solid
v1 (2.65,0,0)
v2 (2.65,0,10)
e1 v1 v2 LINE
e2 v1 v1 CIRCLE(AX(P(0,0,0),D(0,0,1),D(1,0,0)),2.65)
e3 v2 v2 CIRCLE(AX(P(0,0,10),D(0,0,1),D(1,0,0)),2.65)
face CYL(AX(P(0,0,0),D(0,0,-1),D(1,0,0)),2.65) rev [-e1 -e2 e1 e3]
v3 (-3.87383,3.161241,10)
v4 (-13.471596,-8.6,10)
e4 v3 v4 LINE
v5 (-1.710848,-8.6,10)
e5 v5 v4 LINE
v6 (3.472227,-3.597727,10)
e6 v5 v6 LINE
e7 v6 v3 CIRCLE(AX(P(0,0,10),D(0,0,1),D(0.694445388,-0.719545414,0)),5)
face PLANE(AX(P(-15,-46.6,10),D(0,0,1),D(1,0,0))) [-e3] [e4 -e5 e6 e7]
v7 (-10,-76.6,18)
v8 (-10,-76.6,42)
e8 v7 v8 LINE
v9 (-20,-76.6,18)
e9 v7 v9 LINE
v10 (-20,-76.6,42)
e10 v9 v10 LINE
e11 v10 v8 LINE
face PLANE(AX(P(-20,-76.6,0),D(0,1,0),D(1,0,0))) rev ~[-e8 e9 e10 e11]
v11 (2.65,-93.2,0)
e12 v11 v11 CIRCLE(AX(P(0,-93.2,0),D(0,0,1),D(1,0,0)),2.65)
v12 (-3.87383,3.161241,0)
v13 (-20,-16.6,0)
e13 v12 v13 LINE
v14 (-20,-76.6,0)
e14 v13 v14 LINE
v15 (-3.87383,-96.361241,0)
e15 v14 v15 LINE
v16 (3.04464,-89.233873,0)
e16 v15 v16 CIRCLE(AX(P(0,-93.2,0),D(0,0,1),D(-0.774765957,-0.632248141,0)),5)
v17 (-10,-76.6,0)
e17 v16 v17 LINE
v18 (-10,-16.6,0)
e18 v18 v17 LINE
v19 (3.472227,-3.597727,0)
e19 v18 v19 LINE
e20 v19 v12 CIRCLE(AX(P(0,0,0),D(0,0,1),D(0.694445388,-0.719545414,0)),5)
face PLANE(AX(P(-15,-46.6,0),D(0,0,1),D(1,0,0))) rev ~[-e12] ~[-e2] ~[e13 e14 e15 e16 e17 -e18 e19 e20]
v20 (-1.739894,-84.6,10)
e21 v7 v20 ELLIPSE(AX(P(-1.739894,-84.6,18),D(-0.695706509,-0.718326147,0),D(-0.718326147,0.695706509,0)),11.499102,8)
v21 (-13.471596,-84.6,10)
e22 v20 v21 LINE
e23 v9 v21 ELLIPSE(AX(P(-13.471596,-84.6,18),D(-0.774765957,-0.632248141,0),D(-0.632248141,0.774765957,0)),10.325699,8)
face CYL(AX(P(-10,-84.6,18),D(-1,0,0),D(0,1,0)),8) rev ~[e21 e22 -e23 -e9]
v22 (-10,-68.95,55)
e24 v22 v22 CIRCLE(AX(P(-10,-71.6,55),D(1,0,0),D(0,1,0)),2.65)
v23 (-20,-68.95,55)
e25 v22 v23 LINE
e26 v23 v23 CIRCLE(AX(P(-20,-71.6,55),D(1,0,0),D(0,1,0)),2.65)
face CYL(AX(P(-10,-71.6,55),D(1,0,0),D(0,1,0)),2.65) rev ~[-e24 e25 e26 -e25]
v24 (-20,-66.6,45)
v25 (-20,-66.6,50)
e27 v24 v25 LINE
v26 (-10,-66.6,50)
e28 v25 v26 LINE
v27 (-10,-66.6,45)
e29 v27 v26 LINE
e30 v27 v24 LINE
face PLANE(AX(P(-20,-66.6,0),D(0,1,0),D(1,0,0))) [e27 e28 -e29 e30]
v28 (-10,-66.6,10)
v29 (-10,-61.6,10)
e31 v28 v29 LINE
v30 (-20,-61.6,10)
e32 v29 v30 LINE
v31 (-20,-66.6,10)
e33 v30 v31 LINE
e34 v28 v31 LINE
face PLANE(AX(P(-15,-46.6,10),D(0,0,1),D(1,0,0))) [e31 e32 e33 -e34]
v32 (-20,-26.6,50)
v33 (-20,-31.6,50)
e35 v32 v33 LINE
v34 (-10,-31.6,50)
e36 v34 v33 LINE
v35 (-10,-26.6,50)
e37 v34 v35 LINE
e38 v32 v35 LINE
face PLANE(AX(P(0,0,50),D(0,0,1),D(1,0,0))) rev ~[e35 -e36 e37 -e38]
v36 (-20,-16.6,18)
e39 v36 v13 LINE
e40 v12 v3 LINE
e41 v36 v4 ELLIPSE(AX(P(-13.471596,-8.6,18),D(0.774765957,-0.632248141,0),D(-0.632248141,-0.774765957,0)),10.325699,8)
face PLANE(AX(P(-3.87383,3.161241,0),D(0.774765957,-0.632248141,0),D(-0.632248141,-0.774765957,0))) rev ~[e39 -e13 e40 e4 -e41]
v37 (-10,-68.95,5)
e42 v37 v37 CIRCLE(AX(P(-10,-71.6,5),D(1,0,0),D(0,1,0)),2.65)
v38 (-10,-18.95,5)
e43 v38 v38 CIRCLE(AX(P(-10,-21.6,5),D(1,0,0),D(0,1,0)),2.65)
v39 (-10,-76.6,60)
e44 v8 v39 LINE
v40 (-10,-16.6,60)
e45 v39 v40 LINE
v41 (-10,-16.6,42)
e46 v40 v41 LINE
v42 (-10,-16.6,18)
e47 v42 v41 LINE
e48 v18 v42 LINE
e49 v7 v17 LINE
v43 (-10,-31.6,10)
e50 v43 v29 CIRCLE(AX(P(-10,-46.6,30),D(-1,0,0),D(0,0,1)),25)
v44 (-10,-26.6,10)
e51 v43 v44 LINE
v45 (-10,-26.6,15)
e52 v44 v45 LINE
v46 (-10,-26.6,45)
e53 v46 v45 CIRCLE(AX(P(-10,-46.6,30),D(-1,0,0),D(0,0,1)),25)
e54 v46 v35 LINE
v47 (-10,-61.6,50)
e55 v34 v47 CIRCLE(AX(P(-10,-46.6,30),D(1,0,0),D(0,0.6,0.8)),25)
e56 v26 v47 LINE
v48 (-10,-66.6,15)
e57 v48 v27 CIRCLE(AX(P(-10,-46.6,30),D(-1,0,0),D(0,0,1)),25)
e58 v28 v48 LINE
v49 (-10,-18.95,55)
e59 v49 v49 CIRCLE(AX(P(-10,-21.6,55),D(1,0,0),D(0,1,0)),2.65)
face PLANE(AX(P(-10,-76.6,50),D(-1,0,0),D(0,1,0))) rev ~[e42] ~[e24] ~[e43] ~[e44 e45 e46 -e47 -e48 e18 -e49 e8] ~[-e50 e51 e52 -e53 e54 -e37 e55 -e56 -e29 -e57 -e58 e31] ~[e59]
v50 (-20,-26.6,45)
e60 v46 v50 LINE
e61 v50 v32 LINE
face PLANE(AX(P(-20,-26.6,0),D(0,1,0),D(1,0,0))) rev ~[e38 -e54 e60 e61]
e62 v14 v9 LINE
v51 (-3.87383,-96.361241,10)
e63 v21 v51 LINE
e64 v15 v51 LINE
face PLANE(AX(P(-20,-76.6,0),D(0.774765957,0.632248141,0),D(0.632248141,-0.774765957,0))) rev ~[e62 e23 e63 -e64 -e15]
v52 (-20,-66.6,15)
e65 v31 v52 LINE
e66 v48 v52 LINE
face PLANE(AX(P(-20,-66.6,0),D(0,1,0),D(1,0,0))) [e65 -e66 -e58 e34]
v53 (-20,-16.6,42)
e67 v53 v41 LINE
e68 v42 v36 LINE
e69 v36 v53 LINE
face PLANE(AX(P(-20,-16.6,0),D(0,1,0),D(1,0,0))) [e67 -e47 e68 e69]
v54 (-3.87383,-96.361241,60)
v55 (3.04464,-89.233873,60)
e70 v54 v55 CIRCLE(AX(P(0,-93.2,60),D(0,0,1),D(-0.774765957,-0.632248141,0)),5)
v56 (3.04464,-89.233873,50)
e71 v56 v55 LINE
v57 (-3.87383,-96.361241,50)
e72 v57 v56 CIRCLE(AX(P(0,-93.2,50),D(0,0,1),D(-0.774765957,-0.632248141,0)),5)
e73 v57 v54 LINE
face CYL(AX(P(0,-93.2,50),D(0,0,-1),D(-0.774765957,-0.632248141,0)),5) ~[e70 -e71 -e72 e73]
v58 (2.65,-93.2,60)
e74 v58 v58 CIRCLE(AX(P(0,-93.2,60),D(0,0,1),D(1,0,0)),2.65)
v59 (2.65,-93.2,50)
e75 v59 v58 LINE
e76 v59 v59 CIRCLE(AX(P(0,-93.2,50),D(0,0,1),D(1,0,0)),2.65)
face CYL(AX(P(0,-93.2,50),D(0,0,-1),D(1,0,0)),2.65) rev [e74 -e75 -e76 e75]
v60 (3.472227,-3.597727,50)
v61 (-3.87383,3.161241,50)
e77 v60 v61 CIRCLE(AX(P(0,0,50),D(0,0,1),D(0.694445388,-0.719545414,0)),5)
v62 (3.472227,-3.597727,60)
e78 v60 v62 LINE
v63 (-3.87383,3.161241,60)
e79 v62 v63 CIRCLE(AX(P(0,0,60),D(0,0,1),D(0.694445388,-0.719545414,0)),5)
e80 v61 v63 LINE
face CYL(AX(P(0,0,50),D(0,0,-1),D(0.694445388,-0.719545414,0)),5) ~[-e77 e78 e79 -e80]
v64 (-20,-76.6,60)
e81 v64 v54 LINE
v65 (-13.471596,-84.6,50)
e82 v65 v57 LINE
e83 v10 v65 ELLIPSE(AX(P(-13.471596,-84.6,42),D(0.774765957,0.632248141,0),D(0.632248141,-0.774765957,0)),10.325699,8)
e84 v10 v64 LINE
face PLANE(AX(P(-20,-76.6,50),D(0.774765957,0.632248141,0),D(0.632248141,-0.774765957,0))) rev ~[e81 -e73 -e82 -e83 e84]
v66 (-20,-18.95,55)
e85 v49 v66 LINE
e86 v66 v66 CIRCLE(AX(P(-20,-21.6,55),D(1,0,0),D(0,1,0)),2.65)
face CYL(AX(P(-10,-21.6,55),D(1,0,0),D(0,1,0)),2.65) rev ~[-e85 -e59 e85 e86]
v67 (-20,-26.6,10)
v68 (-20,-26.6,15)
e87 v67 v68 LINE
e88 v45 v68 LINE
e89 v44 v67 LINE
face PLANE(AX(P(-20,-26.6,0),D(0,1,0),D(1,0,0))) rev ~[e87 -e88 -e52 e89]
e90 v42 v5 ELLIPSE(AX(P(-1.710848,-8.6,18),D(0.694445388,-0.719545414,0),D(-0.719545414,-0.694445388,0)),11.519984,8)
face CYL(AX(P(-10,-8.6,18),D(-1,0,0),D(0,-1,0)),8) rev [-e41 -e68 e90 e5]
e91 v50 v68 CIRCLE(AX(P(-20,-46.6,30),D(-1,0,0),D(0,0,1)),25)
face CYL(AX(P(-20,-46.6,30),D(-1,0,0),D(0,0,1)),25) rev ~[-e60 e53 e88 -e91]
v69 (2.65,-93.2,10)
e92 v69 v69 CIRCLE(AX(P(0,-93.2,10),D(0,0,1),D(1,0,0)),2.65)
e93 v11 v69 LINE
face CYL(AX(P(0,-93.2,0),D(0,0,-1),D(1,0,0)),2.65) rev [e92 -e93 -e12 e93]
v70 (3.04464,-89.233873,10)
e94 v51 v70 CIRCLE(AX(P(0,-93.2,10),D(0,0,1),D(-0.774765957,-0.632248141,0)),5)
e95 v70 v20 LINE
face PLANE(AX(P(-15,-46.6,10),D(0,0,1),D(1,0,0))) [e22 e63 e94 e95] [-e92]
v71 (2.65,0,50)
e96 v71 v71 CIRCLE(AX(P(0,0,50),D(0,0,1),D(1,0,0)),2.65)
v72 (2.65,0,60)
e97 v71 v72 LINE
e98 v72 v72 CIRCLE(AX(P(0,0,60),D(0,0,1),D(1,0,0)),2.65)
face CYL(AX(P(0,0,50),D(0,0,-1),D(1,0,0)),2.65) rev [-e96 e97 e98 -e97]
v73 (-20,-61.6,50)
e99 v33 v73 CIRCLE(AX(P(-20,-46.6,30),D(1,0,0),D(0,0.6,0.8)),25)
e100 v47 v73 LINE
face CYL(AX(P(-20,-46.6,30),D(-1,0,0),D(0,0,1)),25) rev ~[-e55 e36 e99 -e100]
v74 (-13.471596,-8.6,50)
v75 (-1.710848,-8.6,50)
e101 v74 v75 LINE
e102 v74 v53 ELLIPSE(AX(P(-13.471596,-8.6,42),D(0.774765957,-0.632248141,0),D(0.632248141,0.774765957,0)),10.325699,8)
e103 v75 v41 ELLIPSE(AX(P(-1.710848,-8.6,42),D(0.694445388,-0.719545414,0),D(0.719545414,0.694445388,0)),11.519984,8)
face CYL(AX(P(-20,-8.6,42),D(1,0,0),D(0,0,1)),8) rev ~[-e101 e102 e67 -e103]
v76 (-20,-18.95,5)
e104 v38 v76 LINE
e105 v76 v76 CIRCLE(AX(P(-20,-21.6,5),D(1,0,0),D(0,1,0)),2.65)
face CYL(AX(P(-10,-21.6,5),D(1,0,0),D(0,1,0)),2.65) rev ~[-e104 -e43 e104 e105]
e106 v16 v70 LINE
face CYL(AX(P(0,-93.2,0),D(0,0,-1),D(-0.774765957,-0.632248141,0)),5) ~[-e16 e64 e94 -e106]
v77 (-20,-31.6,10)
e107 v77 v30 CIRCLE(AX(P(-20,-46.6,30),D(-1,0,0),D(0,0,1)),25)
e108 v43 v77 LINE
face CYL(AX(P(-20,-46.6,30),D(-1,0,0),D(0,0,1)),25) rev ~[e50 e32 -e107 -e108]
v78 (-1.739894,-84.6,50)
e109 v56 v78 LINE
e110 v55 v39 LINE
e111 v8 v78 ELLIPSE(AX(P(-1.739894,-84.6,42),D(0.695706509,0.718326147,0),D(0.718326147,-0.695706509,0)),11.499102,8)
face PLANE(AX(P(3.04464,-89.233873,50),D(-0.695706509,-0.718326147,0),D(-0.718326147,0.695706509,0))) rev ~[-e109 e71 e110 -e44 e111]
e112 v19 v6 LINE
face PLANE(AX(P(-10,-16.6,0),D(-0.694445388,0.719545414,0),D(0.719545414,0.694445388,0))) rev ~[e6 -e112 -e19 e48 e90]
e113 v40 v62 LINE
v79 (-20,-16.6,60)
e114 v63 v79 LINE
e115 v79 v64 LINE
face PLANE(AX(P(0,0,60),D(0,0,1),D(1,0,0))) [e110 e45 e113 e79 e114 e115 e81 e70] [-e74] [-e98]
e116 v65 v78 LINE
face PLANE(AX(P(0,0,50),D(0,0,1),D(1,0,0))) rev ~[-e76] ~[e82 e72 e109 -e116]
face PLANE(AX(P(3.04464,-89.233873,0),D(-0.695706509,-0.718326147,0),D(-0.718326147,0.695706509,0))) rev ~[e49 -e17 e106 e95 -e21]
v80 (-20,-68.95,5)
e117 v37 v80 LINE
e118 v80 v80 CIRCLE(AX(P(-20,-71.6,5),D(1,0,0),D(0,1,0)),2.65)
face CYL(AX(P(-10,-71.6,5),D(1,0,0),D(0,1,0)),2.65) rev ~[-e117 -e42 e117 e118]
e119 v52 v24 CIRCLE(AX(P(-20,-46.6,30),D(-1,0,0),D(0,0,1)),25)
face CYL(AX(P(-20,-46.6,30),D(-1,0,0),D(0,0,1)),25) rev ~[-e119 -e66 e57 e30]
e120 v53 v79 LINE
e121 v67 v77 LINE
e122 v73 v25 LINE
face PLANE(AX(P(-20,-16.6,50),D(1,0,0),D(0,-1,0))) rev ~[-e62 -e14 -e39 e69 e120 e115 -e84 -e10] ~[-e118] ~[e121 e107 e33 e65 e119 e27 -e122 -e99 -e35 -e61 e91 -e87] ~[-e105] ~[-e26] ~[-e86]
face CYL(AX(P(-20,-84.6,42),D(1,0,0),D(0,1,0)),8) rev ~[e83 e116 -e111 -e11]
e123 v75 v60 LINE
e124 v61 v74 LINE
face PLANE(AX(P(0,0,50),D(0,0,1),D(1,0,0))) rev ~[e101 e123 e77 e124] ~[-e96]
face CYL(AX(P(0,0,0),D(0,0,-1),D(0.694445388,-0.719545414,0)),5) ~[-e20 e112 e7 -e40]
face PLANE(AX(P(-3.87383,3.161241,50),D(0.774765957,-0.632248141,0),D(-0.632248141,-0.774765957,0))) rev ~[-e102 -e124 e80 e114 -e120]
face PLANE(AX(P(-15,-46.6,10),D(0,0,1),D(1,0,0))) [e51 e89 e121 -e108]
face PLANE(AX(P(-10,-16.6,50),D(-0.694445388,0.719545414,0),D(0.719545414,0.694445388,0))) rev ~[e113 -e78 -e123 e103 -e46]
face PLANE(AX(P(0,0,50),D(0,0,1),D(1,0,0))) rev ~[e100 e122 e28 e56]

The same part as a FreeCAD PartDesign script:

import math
import FreeCAD as App
import Part
import Sketcher


def edges_at(feature, points):
    """Names of the edges that pass closest to the given points."""
    edges = feature.Shape.Edges
    near = lambda p: min(range(len(edges)), key=lambda i: edges[i].distToShape(Part.Vertex(*p))[0])
    return sorted({f"Edge{near(p) + 1}" for p in points})


def add_polygon(sketch, points):
    """Adds a closed chain of lines whose ends are joined by coincident constraints."""
    first, n = sketch.GeometryCount, len(points)
    for a, b in zip(points, points[1:] + points[:1]):
        sketch.addGeometry(Part.LineSegment(App.Vector(*a, 0), App.Vector(*b, 0)), False)
    for i in range(n):
        sketch.addConstraint(Sketcher.Constraint("Coincident", first + i, 2, first + (i + 1) % n, 1))

doc = App.newDocument("Part")
params = doc.addObject("Spreadsheet::Sheet", "Params")
for row, (alias, value) in enumerate([
    ("sketch1_radius", "5 mm"),
    ("sketch1_diameter", "5.3 mm"),
    ("sketch1_height", "60 mm"),
    ("pad1_length", "10 mm"),
    ("sketch2_width", "10 mm"),
    ("pad2_length", "50 mm"),
    ("sketch3_radius", "5 mm"),
    ("sketch3_diameter", "5.3 mm"),
    ("sketch3_height", "60 mm"),
    ("pad3_length", "10 mm"),
    ("sketch4_diameter", "50 mm"),
    ("sketch5_diameter", "5.3 mm"),
    ("fillet_radius", "8 mm"),
], start=1):
    params.set(f"A{row}", alias)
    params.set(f"B{row}", "=" + value)
    params.setAlias(f"B{row}", alias)

body = doc.addObject("PartDesign::Body", "Body")

sketch1 = body.newObject("Sketcher::SketchObject", "Sketch")
sketch1.AttachmentSupport = (doc.getObject("XY_Plane"), [""])
sketch1.MapMode = "FlatFace"
sketch1.addGeometry([
    Part.LineSegment(App.Vector(-20, -16.6, 0), App.Vector(-20, -76.6, 0)),
    Part.LineSegment(App.Vector(-20, -76.6, 0), App.Vector(-3.9, -96.4, 0)),
    Part.ArcOfCircle(Part.Circle(App.Vector(0, -93.2, 0), App.Vector(0, 0, 1), 5), math.radians(-141), math.radians(52)),
    Part.LineSegment(App.Vector(3, -89.2, 0), App.Vector(-10, -76.6, 0)),
    Part.LineSegment(App.Vector(-10, -76.6, 0), App.Vector(-10, -16.6, 0)),
    Part.LineSegment(App.Vector(-10, -16.6, 0), App.Vector(3.5, -3.6, 0)),
    Part.ArcOfCircle(Part.Circle(App.Vector(0, 0, 0), App.Vector(0, 0, 1), 5), math.radians(-46), math.radians(141)),
    Part.LineSegment(App.Vector(-3.9, 3.2, 0), App.Vector(-20, -16.6, 0)),
    Part.Circle(App.Vector(0, -93.2, 0), App.Vector(0, 0, 1), 2.6),
    Part.Circle(App.Vector(0, 0, 0), App.Vector(0, 0, 1), 2.6),
], False)
sketch1.addConstraint([
    Sketcher.Constraint("Coincident", 0, 2, 1, 1),
    Sketcher.Constraint("Tangent", 1, 2, 2, 1),
    Sketcher.Constraint("Coincident", 2, 2, 3, 1),
    Sketcher.Constraint("Coincident", 3, 2, 4, 1),
    Sketcher.Constraint("Coincident", 4, 2, 5, 1),
    Sketcher.Constraint("Tangent", 5, 2, 6, 1),
    Sketcher.Constraint("Tangent", 6, 2, 7, 1),
    Sketcher.Constraint("Coincident", 7, 2, 0, 1),
    Sketcher.Constraint("Vertical", 0),
    Sketcher.Constraint("Vertical", 4),
    Sketcher.Constraint("Coincident", 6, 3, -1, 1),
    Sketcher.Constraint("Coincident", 9, 3, -1, 1),
    Sketcher.Constraint("Coincident", 8, 3, 2, 3),
    Sketcher.Constraint("Equal", 2, 6),
    Sketcher.Constraint("Equal", 8, 9),
    Sketcher.Constraint("PointOnObject", 2, 3, -2),
    Sketcher.Constraint("Horizontal", 0, 2, 3, 2),
    Sketcher.Constraint("Horizontal", 4, 2, 7, 2),
    Sketcher.Constraint("Vertical", 1, 2, 6, 2),
    Sketcher.Constraint("Radius", 2, 5.0),
    Sketcher.Constraint("Diameter", 8, 5.3),
    Sketcher.Constraint("DistanceY", 0, 2, 0, 1, 60.0),
    Sketcher.Constraint("DistanceX", 0, 2, -1, 1, 20.0),
    Sketcher.Constraint("DistanceX", 3, 2, -1, 1, 10.0),
    Sketcher.Constraint("DistanceY", 2, 3, -1, 1, 93.2),
    Sketcher.Constraint("DistanceX", -1, 1, 2, 2, 3.04464),
])
sketch1.setExpression("Constraints[19]", "Params.sketch1_radius")
sketch1.setExpression("Constraints[20]", "Params.sketch1_diameter")
sketch1.setExpression("Constraints[21]", "Params.sketch1_height")
pad1 = body.newObject("PartDesign::Pad", "Pad")
pad1.Profile = sketch1
pad1.setExpression("Length", "Params.pad1_length")

sketch2 = body.newObject("Sketcher::SketchObject", "Sketch001")
sketch2.AttachmentSupport = (doc.getObject("XY_Plane"), [""])
sketch2.MapMode = "FlatFace"
add_polygon(sketch2, [(-20, -17), (-20, -27), (-10, -27), (-10, -17)])
add_polygon(sketch2, [(-20, -67), (-20, -77), (-10, -77), (-10, -67)])
sketch2.addConstraint([
    Sketcher.Constraint("Vertical", 0),
    Sketcher.Constraint("Horizontal", 1),
    Sketcher.Constraint("Vertical", 2),
    Sketcher.Constraint("Horizontal", 3),
    Sketcher.Constraint("Vertical", 4),
    Sketcher.Constraint("Horizontal", 5),
    Sketcher.Constraint("Vertical", 6),
    Sketcher.Constraint("Horizontal", 7),
    Sketcher.Constraint("Vertical", 3, 2, 4, 2),
    Sketcher.Constraint("Vertical", 2, 2, 5, 2),
    Sketcher.Constraint("Equal", 7, 0),
    Sketcher.Constraint("Equal", 2, 4),
    Sketcher.Constraint("DistanceX", 1, 1, 1, 2, 10.0),
    Sketcher.Constraint("DistanceX", 0, 2, -1, 1, 20.0),
    Sketcher.Constraint("DistanceY", 4, 2, 0, 2, 50.0),
    Sketcher.Constraint("DistanceY", 0, 2, -1, 1, 26.6),
])
sketch2.setExpression("Constraints[20]", "Params.sketch2_width")
pad2 = body.newObject("PartDesign::Pad", "Pad001")
pad2.Profile = sketch2
pad2.setExpression("Length", "Params.pad2_length")

sketch3 = body.newObject("Sketcher::SketchObject", "Sketch002")
sketch3.AttachmentSupport = (doc.getObject("XY_Plane"), [""])
sketch3.MapMode = "FlatFace"
sketch3.AttachmentOffset = App.Placement(App.Vector(0, 0, 50), App.Rotation())
sketch3.addGeometry([
    Part.LineSegment(App.Vector(-3.9, 3.2, 0), App.Vector(-20, -16.6, 0)),
    Part.LineSegment(App.Vector(-20, -16.6, 0), App.Vector(-20, -76.6, 0)),
    Part.LineSegment(App.Vector(-20, -76.6, 0), App.Vector(-3.9, -96.4, 0)),
    Part.ArcOfCircle(Part.Circle(App.Vector(0, -93.2, 0), App.Vector(0, 0, 1), 5), math.radians(-141), math.radians(52)),
    Part.LineSegment(App.Vector(3, -89.2, 0), App.Vector(-10, -76.6, 0)),
    Part.LineSegment(App.Vector(-10, -76.6, 0), App.Vector(-10, -16.6, 0)),
    Part.LineSegment(App.Vector(-10, -16.6, 0), App.Vector(3.5, -3.6, 0)),
    Part.ArcOfCircle(Part.Circle(App.Vector(0, 0, 0), App.Vector(0, 0, 1), 5), math.radians(-46), math.radians(141)),
    Part.Circle(App.Vector(0, 0, 0), App.Vector(0, 0, 1), 2.6),
    Part.Circle(App.Vector(0, -93.2, 0), App.Vector(0, 0, 1), 2.6),
], False)
sketch3.addConstraint([
    Sketcher.Constraint("Coincident", 0, 2, 1, 1),
    Sketcher.Constraint("Coincident", 1, 2, 2, 1),
    Sketcher.Constraint("Tangent", 2, 2, 3, 1),
    Sketcher.Constraint("Coincident", 3, 2, 4, 1),
    Sketcher.Constraint("Coincident", 4, 2, 5, 1),
    Sketcher.Constraint("Coincident", 5, 2, 6, 1),
    Sketcher.Constraint("Tangent", 6, 2, 7, 1),
    Sketcher.Constraint("Tangent", 7, 2, 0, 1),
    Sketcher.Constraint("Vertical", 1),
    Sketcher.Constraint("Vertical", 5),
    Sketcher.Constraint("Coincident", 7, 3, -1, 1),
    Sketcher.Constraint("Coincident", 8, 3, -1, 1),
    Sketcher.Constraint("Coincident", 9, 3, 3, 3),
    Sketcher.Constraint("Equal", 3, 7),
    Sketcher.Constraint("Equal", 8, 9),
    Sketcher.Constraint("PointOnObject", 3, 3, -2),
    Sketcher.Constraint("Horizontal", 1, 2, 4, 2),
    Sketcher.Constraint("Horizontal", 0, 2, 5, 2),
    Sketcher.Constraint("Vertical", 2, 2, 7, 2),
    Sketcher.Constraint("Radius", 3, 5.0),
    Sketcher.Constraint("Diameter", 8, 5.3),
    Sketcher.Constraint("DistanceY", 1, 2, 1, 1, 60.0),
    Sketcher.Constraint("DistanceX", 0, 2, -1, 1, 20.0),
    Sketcher.Constraint("DistanceX", 4, 2, -1, 1, 10.0),
    Sketcher.Constraint("DistanceY", 3, 3, -1, 1, 93.2),
    Sketcher.Constraint("DistanceX", -1, 1, 3, 2, 3.04464),
])
sketch3.setExpression("Constraints[19]", "Params.sketch3_radius")
sketch3.setExpression("Constraints[20]", "Params.sketch3_diameter")
sketch3.setExpression("Constraints[21]", "Params.sketch3_height")
pad3 = body.newObject("PartDesign::Pad", "Pad002")
pad3.Profile = sketch3
pad3.setExpression("Length", "Params.pad3_length")

sketch4 = body.newObject("Sketcher::SketchObject", "Sketch003")
sketch4.AttachmentSupport = (doc.getObject("YZ_Plane"), [""])
sketch4.MapMode = "FlatFace"
sketch4.AttachmentOffset = App.Placement(App.Vector(0, 0, -20), App.Rotation())
sketch4.addGeometry(Part.Circle(App.Vector(-47, 30, 0), App.Vector(0, 0, 1), 25), False)
sketch4.addConstraint([
    Sketcher.Constraint("Diameter", 0, 50.0),
    Sketcher.Constraint("DistanceY", -1, 1, 0, 3, 30.0),
    Sketcher.Constraint("DistanceX", 0, 3, -1, 1, 46.6),
])
sketch4.setExpression("Constraints[0]", "Params.sketch4_diameter")
pocket1 = body.newObject("PartDesign::Pocket", "Pocket")
pocket1.Profile = sketch4
pocket1.Type = "ThroughAll"
pocket1.Reversed = True

sketch5 = body.newObject("Sketcher::SketchObject", "Sketch004")
sketch5.AttachmentSupport = (doc.getObject("YZ_Plane"), [""])
sketch5.MapMode = "FlatFace"
sketch5.AttachmentOffset = App.Placement(App.Vector(0, 0, -10), App.Rotation())
sketch5.addGeometry([
    Part.Circle(App.Vector(-21.6, 55, 0), App.Vector(0, 0, 1), 2.6),
    Part.Circle(App.Vector(-21.6, 5, 0), App.Vector(0, 0, 1), 2.6),
    Part.Circle(App.Vector(-71.6, 55, 0), App.Vector(0, 0, 1), 2.6),
    Part.Circle(App.Vector(-71.6, 5, 0), App.Vector(0, 0, 1), 2.6),
], False)
sketch5.addConstraint([
    Sketcher.Constraint("Equal", 0, 1),
    Sketcher.Constraint("Equal", 1, 2),
    Sketcher.Constraint("Equal", 2, 3),
    Sketcher.Constraint("Horizontal", 0, 3, 2, 3),
    Sketcher.Constraint("Horizontal", 1, 3, 3, 3),
    Sketcher.Constraint("Vertical", 0, 3, 1, 3),
    Sketcher.Constraint("Vertical", 2, 3, 3, 3),
    Sketcher.Constraint("Diameter", 0, 5.3),
    Sketcher.Constraint("DistanceY", -1, 1, 0, 3, 55.0),
    Sketcher.Constraint("DistanceY", -1, 1, 1, 3, 5.0),
    Sketcher.Constraint("DistanceX", 2, 3, 0, 3, 50.0),
    Sketcher.Constraint("DistanceX", 0, 3, -1, 1, 21.6),
])
sketch5.setExpression("Constraints[7]", "Params.sketch5_diameter")
pocket2 = body.newObject("PartDesign::Pocket", "Pocket001")
pocket2.Profile = sketch5
pocket2.Type = "ThroughAll"
doc.recompute()

fillet = body.newObject("PartDesign::Fillet", "Fillet")
fillet.Base = (pocket2, edges_at(pocket2, [
    (-15, -16.6, 10),
    (-15, -16.6, 50),
    (-15, -76.6, 10),
    (-15, -76.6, 50),
]))
fillet.setExpression("Radius", "Params.fillet_radius")

doc.recompute()
